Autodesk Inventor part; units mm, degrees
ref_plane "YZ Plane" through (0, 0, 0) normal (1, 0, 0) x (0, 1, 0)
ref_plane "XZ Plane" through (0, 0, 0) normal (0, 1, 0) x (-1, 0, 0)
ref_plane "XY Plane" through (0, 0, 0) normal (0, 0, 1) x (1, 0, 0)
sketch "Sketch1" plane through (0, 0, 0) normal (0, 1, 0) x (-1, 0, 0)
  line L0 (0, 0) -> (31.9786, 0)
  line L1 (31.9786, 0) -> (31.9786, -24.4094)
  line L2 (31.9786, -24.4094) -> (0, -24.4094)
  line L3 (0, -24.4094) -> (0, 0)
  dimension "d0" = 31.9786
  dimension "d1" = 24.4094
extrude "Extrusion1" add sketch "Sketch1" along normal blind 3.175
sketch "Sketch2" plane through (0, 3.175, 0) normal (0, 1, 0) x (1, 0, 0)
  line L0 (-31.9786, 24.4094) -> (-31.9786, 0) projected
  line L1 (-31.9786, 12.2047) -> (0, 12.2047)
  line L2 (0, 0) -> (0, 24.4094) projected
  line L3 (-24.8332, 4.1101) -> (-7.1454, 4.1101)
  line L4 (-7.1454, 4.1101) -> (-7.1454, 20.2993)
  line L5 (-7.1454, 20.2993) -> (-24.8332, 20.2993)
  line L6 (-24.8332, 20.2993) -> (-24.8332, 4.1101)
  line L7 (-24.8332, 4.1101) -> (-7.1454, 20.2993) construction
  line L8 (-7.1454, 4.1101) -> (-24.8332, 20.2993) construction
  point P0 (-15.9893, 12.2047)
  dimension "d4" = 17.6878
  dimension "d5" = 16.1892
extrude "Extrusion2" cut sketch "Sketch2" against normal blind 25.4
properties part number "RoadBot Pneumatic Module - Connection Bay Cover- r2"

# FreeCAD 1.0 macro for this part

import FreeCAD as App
import Part
import Sketcher
Q = App.Units.Quantity


def add_polygon(sketch, points):
    """Adds a closed chain of lines whose ends are joined by coincident constraints."""
    first, n = sketch.GeometryCount, len(points)
    for a, b in zip(points, points[1:] + points[:1]):
        sketch.addGeometry(Part.LineSegment(App.Vector(*a, 0), App.Vector(*b, 0)), False)
    for i in range(n):
        sketch.addConstraint(Sketcher.Constraint("Coincident", first + i, 2, first + (i + 1) % n, 1))

doc = App.newDocument("Part")
body = doc.addObject("PartDesign::Body", "Body")

sketch1 = body.newObject("Sketcher::SketchObject", "Sketch")
sketch1.AttachmentSupport = (doc.getObject("XZ_Plane"), [""])
sketch1.MapMode = "FlatFace"
add_polygon(sketch1, [(-32, 0), (0, 0), (0, -24), (-32, -24)])
sketch1.addConstraint([
    Sketcher.Constraint("Horizontal", 0),
    Sketcher.Constraint("Vertical", 1),
    Sketcher.Constraint("Horizontal", 2),
    Sketcher.Constraint("Vertical", 3),
    Sketcher.Constraint("Coincident", 0, 2, -1, 1),
    Sketcher.Constraint("DistanceX", 0, 1, 0, 2, Q("1.259 in")),
    Sketcher.Constraint("DistanceY", 1, 2, 1, 1, Q("0.961 in")),
])
pad1 = body.newObject("PartDesign::Pad", "Pad")
pad1.Profile = sketch1
pad1.Length = Q("0.125 in")
pad1.Reversed = True

sketch2 = body.newObject("Sketcher::SketchObject", "Sketch001")
sketch2.AttachmentSupport = (doc.getObject("XZ_Plane"), [""])
sketch2.MapMode = "FlatFace"
sketch2.AttachmentOffset = App.Placement(App.Vector(0, 0, -0.125 * 25.4), App.Rotation())
add_polygon(sketch2, [(-25, -20), (-25, -4), (-7, -4), (-7, -20)])
sketch2.addConstraint([
    Sketcher.Constraint("Vertical", 0),
    Sketcher.Constraint("Horizontal", 1),
    Sketcher.Constraint("Vertical", 2),
    Sketcher.Constraint("Horizontal", 3),
    Sketcher.Constraint("DistanceX", 1, 1, 1, 2, Q("17.6878 mm")),
    Sketcher.Constraint("DistanceY", 0, 1, 0, 2, Q("16.1892 mm")),
    Sketcher.Constraint("DistanceX", 0, 2, -1, 1, Q("24.8332 mm")),
    Sketcher.Constraint("DistanceY", 0, 2, -1, 1, Q("0.161811 in")),
])
pocket1 = body.newObject("PartDesign::Pocket", "Pocket")
pocket1.Profile = sketch2
pocket1.Length = Q("1 in")
pocket1.Reversed = True

doc.recompute()
